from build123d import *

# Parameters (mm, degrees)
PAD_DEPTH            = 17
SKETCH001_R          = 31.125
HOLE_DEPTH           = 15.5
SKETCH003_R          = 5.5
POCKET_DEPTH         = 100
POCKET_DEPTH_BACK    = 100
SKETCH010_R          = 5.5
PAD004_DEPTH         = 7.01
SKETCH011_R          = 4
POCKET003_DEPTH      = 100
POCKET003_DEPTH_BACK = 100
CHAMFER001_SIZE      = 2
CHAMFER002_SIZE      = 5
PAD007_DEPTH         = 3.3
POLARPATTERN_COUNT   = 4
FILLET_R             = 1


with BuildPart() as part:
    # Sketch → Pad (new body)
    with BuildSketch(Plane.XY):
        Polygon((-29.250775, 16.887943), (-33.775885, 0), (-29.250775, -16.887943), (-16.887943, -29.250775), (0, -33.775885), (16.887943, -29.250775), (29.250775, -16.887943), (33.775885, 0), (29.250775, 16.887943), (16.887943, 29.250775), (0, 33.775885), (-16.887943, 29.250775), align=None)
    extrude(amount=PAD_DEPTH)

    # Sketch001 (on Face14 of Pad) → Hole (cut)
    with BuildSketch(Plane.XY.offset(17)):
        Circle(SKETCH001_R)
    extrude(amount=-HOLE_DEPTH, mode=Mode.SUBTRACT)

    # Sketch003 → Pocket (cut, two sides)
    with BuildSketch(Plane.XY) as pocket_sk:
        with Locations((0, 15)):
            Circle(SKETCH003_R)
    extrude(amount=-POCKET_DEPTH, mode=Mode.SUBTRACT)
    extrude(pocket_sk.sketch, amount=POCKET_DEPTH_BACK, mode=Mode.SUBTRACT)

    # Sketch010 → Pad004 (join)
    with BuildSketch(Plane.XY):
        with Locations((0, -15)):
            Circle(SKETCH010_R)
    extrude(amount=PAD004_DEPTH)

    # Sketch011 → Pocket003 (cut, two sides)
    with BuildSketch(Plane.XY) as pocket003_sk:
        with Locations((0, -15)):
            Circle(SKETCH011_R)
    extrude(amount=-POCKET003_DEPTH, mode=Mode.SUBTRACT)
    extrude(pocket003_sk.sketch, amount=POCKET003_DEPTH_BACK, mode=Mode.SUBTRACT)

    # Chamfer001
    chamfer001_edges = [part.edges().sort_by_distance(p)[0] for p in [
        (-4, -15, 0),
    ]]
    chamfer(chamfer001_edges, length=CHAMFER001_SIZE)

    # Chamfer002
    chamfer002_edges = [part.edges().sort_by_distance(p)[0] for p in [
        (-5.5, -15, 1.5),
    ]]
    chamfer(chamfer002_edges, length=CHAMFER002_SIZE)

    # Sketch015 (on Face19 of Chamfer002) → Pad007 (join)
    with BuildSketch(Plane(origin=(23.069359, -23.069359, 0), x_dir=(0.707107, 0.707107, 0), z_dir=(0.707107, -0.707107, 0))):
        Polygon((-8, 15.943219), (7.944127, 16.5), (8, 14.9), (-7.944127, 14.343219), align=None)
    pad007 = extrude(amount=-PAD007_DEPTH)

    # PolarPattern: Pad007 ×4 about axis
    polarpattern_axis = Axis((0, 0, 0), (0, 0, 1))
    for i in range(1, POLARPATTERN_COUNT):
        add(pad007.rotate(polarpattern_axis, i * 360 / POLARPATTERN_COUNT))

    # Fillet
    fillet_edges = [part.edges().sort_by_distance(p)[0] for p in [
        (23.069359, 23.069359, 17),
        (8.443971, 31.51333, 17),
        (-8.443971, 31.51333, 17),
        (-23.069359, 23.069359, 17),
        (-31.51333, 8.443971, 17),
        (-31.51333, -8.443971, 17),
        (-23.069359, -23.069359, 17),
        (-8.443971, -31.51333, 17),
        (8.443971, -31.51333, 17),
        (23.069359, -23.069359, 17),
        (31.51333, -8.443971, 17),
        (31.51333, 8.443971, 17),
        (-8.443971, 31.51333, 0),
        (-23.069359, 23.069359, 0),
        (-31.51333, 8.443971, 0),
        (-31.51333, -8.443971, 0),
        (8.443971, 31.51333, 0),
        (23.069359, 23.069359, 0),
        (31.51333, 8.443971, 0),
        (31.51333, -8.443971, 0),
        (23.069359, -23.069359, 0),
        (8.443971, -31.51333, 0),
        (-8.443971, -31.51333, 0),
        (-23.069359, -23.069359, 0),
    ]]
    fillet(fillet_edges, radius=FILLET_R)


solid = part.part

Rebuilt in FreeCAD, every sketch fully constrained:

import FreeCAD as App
import Part
import Sketcher

V = App.Vector
Q = App.Units.Quantity


def edges_at(feature, points):
    """Names of the edges that pass closest to the given points."""
    edges = feature.Shape.Edges
    near = lambda p: min(range(len(edges)), key=lambda i: edges[i].distToShape(Part.Vertex(*p))[0])
    return sorted({f"Edge{near(p) + 1}" for p in points})


def add_polygon(sketch, points):
    """Adds a closed chain of lines whose ends are joined by coincident constraints."""
    first, n = sketch.GeometryCount, len(points)
    for a, b in zip(points, points[1:] + points[:1]):
        sketch.addGeometry(Part.LineSegment(App.Vector(*a, 0), App.Vector(*b, 0)), False)
    for i in range(n):
        sketch.addConstraint(Sketcher.Constraint("Coincident", first + i, 2, first + (i + 1) % n, 1))

doc = App.newDocument("Part")
body = doc.addObject("PartDesign::Body", "Body")

# Sketch on XY plane
sketch1 = body.newObject("Sketcher::SketchObject", "Sketch")
sketch1.AttachmentSupport = (doc.getObject("XY_Plane"), [""])
sketch1.MapMode = "FlatFace"
add_polygon(sketch1, [(-29, 17), (-34, 0), (-29, -17), (-17, -29), (0, -34), (17, -29), (29, -17), (34, 0), (29, 17), (17, 29), (0, 34), (-17, 29)])  # lines 0-11
sketch1.addConstraint([
    Sketcher.Constraint("Symmetric", 0, 2, 6, 2, -1, 1),
    Sketcher.Constraint("Symmetric", 1, 2, 7, 2, -1, 1),
    Sketcher.Constraint("Symmetric", 2, 2, 8, 2, -1, 1),
    Sketcher.Constraint("Symmetric", 3, 2, 9, 2, -1, 1),
    Sketcher.Constraint("Symmetric", 4, 2, 10, 2, -1, 1),
    Sketcher.Constraint("Symmetric", 5, 2, 11, 2, -1, 1),
    Sketcher.Constraint("Symmetric", 2, 2, 4, 2, -2),
    Sketcher.Constraint("Symmetric", 1, 2, 5, 2, -2),
    Sketcher.Constraint("PointOnObject", 0, 2, -1),
    Sketcher.Constraint("PointOnObject", 3, 2, -2),
    Sketcher.Constraint("Perpendicular", 0, 3),
    Sketcher.Constraint("Perpendicular", 2, 5),
    Sketcher.Constraint("Equal", 1, 2),
    Sketcher.Constraint("Equal", 2, 3),
    Sketcher.Constraint("Angle", 0, Q("-104.999998 deg")),
    Sketcher.Constraint("DistanceX", 0, 2, 1, 2, 4.52511),
])
pad1 = body.newObject("PartDesign::Pad", "Pad")
pad1.Profile = sketch1
pad1.Length = 17

# Sketch on XY plane
sketch2 = body.newObject("Sketcher::SketchObject", "Sketch001")
sketch2.AttachmentSupport = (doc.getObject("XY_Plane"), [""])
sketch2.MapMode = "FlatFace"
sketch2.AttachmentOffset = App.Placement(V(0, 0, 17), App.Rotation())
sketch2.addGeometry(Part.Circle(V(0, 0, 0), V(0, 0, 1), 31), False)
sketch2.addConstraint([
    Sketcher.Constraint("Coincident", 0, 3, -1, 1),
    Sketcher.Constraint("Diameter", 0, 62.25),
])
pocket1 = body.newObject("PartDesign::Pocket", "Pocket")
pocket1.Profile = sketch2
pocket1.Length = 15.5

# Sketch on XY plane
sketch3 = body.newObject("Sketcher::SketchObject", "Sketch002")
sketch3.AttachmentSupport = (doc.getObject("XY_Plane"), [""])
sketch3.MapMode = "FlatFace"
sketch3.addGeometry(Part.Circle(V(0, 15, 0), V(0, 0, 1), 6), False)
sketch3.addConstraint([
    Sketcher.Constraint("PointOnObject", 0, 3, -2),
    Sketcher.Constraint("Diameter", 0, 11.0),
    Sketcher.Constraint("DistanceY", -1, 1, 0, 3, 15.0),
])
pocket2 = body.newObject("PartDesign::Pocket", "Pocket001")
pocket2.Profile = sketch3
pocket2.Type = "ThroughAll"
pocket2.Midplane = True

# Sketch on XY plane
sketch4 = body.newObject("Sketcher::SketchObject", "Sketch003")
sketch4.AttachmentSupport = (doc.getObject("XY_Plane"), [""])
sketch4.MapMode = "FlatFace"
sketch4.addGeometry(Part.Circle(V(0, -15, 0), V(0, 0, 1), 6), False)
sketch4.addConstraint([
    Sketcher.Constraint("PointOnObject", 0, 3, -2),
    Sketcher.Constraint("Diameter", 0, 11.0),
    Sketcher.Constraint("DistanceY", 0, 3, -1, 1, 15.0),
])
pad2 = body.newObject("PartDesign::Pad", "Pad001")
pad2.Profile = sketch4
pad2.Length = 7.01

# Sketch on XY plane
sketch5 = body.newObject("Sketcher::SketchObject", "Sketch004")
sketch5.AttachmentSupport = (doc.getObject("XY_Plane"), [""])
sketch5.MapMode = "FlatFace"
sketch5.addGeometry(Part.Circle(V(0, -15, 0), V(0, 0, 1), 4), False)
sketch5.addConstraint([
    Sketcher.Constraint("PointOnObject", 0, 3, -2),
    Sketcher.Constraint("Diameter", 0, 8.0),
    Sketcher.Constraint("DistanceY", 0, 3, -1, 1, 15.0),
])
pocket3 = body.newObject("PartDesign::Pocket", "Pocket002")
pocket3.Profile = sketch5
pocket3.Type = "ThroughAll"
pocket3.Midplane = True
doc.recompute()

chamfer = body.newObject("PartDesign::Chamfer", "Chamfer")
chamfer.Base = (pocket3, edges_at(pocket3, [(-4, -15, 0)]))
chamfer.Size = 2
doc.recompute()

chamfer2 = body.newObject("PartDesign::Chamfer", "Chamfer001")
chamfer2.Base = (chamfer, edges_at(chamfer, [(-5.5, -15, 1.5)]))
chamfer2.Size = 5

# Sketch on an angled plane
sketch6 = body.newObject("Sketcher::SketchObject", "Sketch005")
sketch6.Placement = App.Placement(V(23.069359, -23.069359, 0), App.Rotation(V(0.707106781, 0.707106781, 0), V(0, 0, 0.999999999), V(0.707106781, -0.707106781, 0), "ZXY"))
add_polygon(sketch6, [(7.9, 16.5), (-8, 15.9), (-7.9, 14.3), (8, 14.9)])  # lines 0-3
sketch6.addConstraint([
    Sketcher.Constraint("Perpendicular", 0, 1),
    Sketcher.Constraint("Perpendicular", 1, 2),
    Sketcher.Constraint("Perpendicular", 2, 3),
    Sketcher.Constraint("Angle", 0, Q("-178.000001 deg")),
    Sketcher.Constraint("DistanceX", 0, 2, -1, 1, 8.0),
    Sketcher.Constraint("DistanceX", -1, 1, 2, 2, 8.0),
    Sketcher.Constraint("DistanceY", -1, 1, 2, 2, 14.9),
    Sketcher.Constraint("DistanceY", -1, 1, 3, 2, 16.5),
])
pad3 = body.newObject("PartDesign::Pad", "Pad002")
pad3.Profile = sketch6
pad3.Length = 3.3
pad3.Reversed = True
doc.recompute()

polarpattern = body.newObject("PartDesign::PolarPattern", "PolarPattern")
polarpattern.Originals = [pad3]
polarpattern.Axis = (doc.getObject("Z_Axis"), [""])
polarpattern.Angle = 360
polarpattern.Occurrences = 4
body.Tip = polarpattern
doc.recompute()

fillet = body.newObject("PartDesign::Fillet", "Fillet")
fillet.Base = (polarpattern, edges_at(polarpattern, [
    (23.069, 23.069, 17),
    (8.444, 31.513, 17),
    (-8.444, 31.513, 17),
    (-23.069, 23.069, 17),
    (-31.513, 8.444, 17),
    (-31.513, -8.444, 17),
    (-23.069, -23.069, 17),
    (-8.444, -31.513, 17),
    (8.444, -31.513, 17),
    (23.069, -23.069, 17),
    (31.513, -8.444, 17),
    (31.513, 8.444, 17),
    (-8.444, 31.513, 0),
    (-23.069, 23.069, 0),
    (-31.513, 8.444, 0),
    (-31.513, -8.444, 0),
    (8.444, 31.513, 0),
    (23.069, 23.069, 0),
    (31.513, 8.444, 0),
    (31.513, -8.444, 0),
    (23.069, -23.069, 0),
    (8.444, -31.513, 0),
    (-8.444, -31.513, 0),
    (-23.069, -23.069, 0),
]))
fillet.Radius = 1

doc.recompute()
